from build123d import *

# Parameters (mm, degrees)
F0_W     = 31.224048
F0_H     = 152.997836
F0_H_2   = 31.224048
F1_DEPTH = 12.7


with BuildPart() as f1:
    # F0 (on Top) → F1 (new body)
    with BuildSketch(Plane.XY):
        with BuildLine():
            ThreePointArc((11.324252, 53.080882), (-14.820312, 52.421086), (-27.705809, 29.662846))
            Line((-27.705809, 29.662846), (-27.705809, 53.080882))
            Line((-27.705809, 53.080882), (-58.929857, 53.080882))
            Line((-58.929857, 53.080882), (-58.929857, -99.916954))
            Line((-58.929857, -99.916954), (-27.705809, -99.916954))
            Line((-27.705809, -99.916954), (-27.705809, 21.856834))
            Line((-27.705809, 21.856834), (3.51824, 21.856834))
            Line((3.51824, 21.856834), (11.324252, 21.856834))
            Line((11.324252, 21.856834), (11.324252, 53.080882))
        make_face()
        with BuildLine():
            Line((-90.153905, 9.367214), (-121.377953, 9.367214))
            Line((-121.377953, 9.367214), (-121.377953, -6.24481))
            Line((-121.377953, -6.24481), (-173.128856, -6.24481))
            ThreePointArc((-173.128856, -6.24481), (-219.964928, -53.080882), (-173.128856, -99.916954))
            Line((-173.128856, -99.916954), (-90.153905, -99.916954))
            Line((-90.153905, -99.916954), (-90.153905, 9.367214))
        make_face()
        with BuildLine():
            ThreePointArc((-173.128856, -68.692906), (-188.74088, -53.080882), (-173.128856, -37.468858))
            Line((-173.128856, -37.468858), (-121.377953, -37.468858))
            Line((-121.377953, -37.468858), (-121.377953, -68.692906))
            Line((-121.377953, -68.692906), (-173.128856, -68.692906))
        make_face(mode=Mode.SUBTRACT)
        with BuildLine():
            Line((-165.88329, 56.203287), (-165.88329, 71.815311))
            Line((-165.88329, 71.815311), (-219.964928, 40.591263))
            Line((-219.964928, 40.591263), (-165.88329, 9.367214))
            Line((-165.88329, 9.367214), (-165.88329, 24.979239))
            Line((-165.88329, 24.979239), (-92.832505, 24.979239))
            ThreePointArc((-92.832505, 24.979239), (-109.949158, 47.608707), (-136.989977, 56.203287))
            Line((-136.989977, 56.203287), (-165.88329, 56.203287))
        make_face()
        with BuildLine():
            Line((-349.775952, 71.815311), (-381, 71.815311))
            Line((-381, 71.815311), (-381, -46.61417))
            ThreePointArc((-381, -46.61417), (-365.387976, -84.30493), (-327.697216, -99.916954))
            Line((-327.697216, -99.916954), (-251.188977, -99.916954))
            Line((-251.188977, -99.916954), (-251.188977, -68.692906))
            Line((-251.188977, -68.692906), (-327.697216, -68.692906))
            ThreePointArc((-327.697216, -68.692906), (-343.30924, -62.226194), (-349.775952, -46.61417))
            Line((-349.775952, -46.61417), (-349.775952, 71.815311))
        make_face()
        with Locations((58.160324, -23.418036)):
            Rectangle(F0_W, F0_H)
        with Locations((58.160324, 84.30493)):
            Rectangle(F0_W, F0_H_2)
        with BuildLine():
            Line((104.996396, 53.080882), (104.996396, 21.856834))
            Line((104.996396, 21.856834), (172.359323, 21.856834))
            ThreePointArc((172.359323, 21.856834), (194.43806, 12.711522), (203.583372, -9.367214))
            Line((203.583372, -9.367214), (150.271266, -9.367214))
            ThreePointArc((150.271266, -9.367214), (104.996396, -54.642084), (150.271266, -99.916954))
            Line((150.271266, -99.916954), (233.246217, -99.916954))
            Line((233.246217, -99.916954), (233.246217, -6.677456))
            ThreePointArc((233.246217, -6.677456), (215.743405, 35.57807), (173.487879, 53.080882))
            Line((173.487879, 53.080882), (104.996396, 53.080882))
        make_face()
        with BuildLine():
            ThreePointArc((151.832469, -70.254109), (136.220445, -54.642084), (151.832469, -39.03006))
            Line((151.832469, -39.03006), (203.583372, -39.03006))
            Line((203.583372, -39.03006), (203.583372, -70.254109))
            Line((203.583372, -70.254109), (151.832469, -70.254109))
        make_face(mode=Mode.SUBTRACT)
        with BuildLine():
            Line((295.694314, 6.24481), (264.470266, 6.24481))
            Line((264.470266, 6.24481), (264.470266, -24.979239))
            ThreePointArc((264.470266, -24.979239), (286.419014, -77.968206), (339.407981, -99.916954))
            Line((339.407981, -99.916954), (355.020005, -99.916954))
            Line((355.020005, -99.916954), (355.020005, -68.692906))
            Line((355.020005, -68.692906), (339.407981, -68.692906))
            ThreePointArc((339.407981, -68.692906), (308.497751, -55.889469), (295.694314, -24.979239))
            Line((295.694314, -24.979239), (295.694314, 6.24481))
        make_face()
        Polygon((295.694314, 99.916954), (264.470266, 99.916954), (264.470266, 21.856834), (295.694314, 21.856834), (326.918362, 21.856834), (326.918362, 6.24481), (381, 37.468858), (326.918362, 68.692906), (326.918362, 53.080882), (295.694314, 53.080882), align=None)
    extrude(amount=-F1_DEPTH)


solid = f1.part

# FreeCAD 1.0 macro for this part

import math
import FreeCAD as App
import Part
import Sketcher
from FreeCAD import Vector
Q = App.Units.Quantity


def add_polygon(sketch, points):
    """Adds a closed chain of lines whose ends are joined by coincident constraints."""
    first, n = sketch.GeometryCount, len(points)
    for a, b in zip(points, points[1:] + points[:1]):
        sketch.addGeometry(Part.LineSegment(App.Vector(*a, 0), App.Vector(*b, 0)), False)
    for i in range(n):
        sketch.addConstraint(Sketcher.Constraint("Coincident", first + i, 2, first + (i + 1) % n, 1))

doc = App.newDocument("Part")
body = doc.addObject("PartDesign::Body", "Body")
body.AllowCompound = True

sketch1 = body.newObject("Sketcher::SketchObject", "Sketch")
sketch1.AttachmentSupport = (doc.getObject("XY_Plane"), [""])
sketch1.MapMode = "FlatFace"
sketch1.addGeometry(Part.ArcOfCircle(Part.Circle(Vector(-1, 30, 0), Vector(0, 0, 1), 27), math.radians(62), math.radians(180)), False)
sketch1.addGeometry(Part.LineSegment(Vector(-28, 30, 0), Vector(-28, 53, 0)), False)
sketch1.addGeometry(Part.LineSegment(Vector(-28, 53, 0), Vector(-59, 53, 0)), False)
sketch1.addGeometry(Part.LineSegment(Vector(-59, 53, 0), Vector(-59, -100, 0)), False)
sketch1.addGeometry(Part.LineSegment(Vector(-59, -100, 0), Vector(-28, -100, 0)), False)
sketch1.addGeometry(Part.LineSegment(Vector(-28, -100, 0), Vector(-28, 22, 0)), False)
sketch1.addGeometry(Part.LineSegment(Vector(-28, 22, 0), Vector(11, 22, 0)), False)
sketch1.addGeometry(Part.LineSegment(Vector(11, 22, 0), Vector(11, 53, 0)), False)
sketch1.addGeometry(Part.LineSegment(Vector(-90, 9, 0), Vector(-121, 9, 0)), False)
sketch1.addGeometry(Part.LineSegment(Vector(-121, 9, 0), Vector(-121, -6, 0)), False)
sketch1.addGeometry(Part.LineSegment(Vector(-121, -6, 0), Vector(-173, -6, 0)), False)
sketch1.addGeometry(Part.ArcOfCircle(Part.Circle(Vector(-173, -53, 0), Vector(0, 0, 1), 47), math.radians(90), math.radians(270)), False)
sketch1.addGeometry(Part.LineSegment(Vector(-173, -100, 0), Vector(-90, -100, 0)), False)
sketch1.addGeometry(Part.LineSegment(Vector(-90, -100, 0), Vector(-90, 9, 0)), False)
sketch1.addGeometry(Part.LineSegment(Vector(-121, -69, 0), Vector(-173, -69, 0)), False)
sketch1.addGeometry(Part.ArcOfCircle(Part.Circle(Vector(-173, -53, 0), Vector(0, 0, 1), 16), math.radians(90), math.radians(270)), False)
sketch1.addGeometry(Part.LineSegment(Vector(-173, -37, 0), Vector(-121, -37, 0)), False)
sketch1.addGeometry(Part.LineSegment(Vector(-121, -37, 0), Vector(-121, -69, 0)), False)
sketch1.addGeometry(Part.LineSegment(Vector(-166, 56, 0), Vector(-166, 72, 0)), False)
sketch1.addGeometry(Part.LineSegment(Vector(-166, 72, 0), Vector(-220, 41, 0)), False)
sketch1.addGeometry(Part.LineSegment(Vector(-220, 41, 0), Vector(-166, 9, 0)), False)
sketch1.addGeometry(Part.LineSegment(Vector(-166, 9, 0), Vector(-166, 25, 0)), False)
sketch1.addGeometry(Part.LineSegment(Vector(-166, 25, 0), Vector(-93, 25, 0)), False)
sketch1.addGeometry(Part.ArcOfCircle(Part.Circle(Vector(-137, 9, 0), Vector(0, 0, 1), 47), math.radians(19), math.radians(90)), False)
sketch1.addGeometry(Part.LineSegment(Vector(-137, 56, 0), Vector(-166, 56, 0)), False)
sketch1.addGeometry(Part.LineSegment(Vector(-350, 72, 0), Vector(-381, 72, 0)), False)
sketch1.addGeometry(Part.LineSegment(Vector(-381, 72, 0), Vector(-381, -47, 0)), False)
sketch1.addGeometry(Part.ArcOfCircle(Part.Circle(Vector(-328, -47, 0), Vector(0, 0, 1), 53), math.radians(-180), math.radians(-90)), False)
sketch1.addGeometry(Part.LineSegment(Vector(-328, -100, 0), Vector(-251, -100, 0)), False)
sketch1.addGeometry(Part.LineSegment(Vector(-251, -100, 0), Vector(-251, -69, 0)), False)
sketch1.addGeometry(Part.LineSegment(Vector(-251, -69, 0), Vector(-328, -69, 0)), False)
sketch1.addGeometry(Part.ArcOfCircle(Part.Circle(Vector(-328, -47, 0), Vector(0, 0, 1), 22), math.radians(180), math.radians(270)), False)
sketch1.addGeometry(Part.LineSegment(Vector(-350, -47, 0), Vector(-350, 72, 0)), False)
add_polygon(sketch1, [(43, 53), (43, -100), (74, -100), (74, 53)])
add_polygon(sketch1, [(43, 100), (43, 69), (74, 69), (74, 100)])
sketch1.addGeometry(Part.LineSegment(Vector(105, 53, 0), Vector(105, 22, 0)), False)
sketch1.addGeometry(Part.LineSegment(Vector(105, 22, 0), Vector(172, 22, 0)), False)
sketch1.addGeometry(Part.ArcOfCircle(Part.Circle(Vector(172, -9, 0), Vector(0, 0, 1), 31), math.radians(0), math.radians(90)), False)
sketch1.addGeometry(Part.LineSegment(Vector(204, -9, 0), Vector(150, -9, 0)), False)
sketch1.addGeometry(Part.ArcOfCircle(Part.Circle(Vector(150, -55, 0), Vector(0, 0, 1), 45), math.radians(90), math.radians(270)), False)
sketch1.addGeometry(Part.LineSegment(Vector(150, -100, 0), Vector(233, -100, 0)), False)
sketch1.addGeometry(Part.LineSegment(Vector(233, -100, 0), Vector(233, -7, 0)), False)
sketch1.addGeometry(Part.ArcOfCircle(Part.Circle(Vector(173, -7, 0), Vector(0, 0, 1), 60), math.radians(0), math.radians(90)), False)
sketch1.addGeometry(Part.LineSegment(Vector(173, 53, 0), Vector(105, 53, 0)), False)
sketch1.addGeometry(Part.LineSegment(Vector(204, -70, 0), Vector(152, -70, 0)), False)
sketch1.addGeometry(Part.ArcOfCircle(Part.Circle(Vector(152, -55, 0), Vector(0, 0, 1), 16), math.radians(90), math.radians(270)), False)
sketch1.addGeometry(Part.LineSegment(Vector(152, -39, 0), Vector(204, -39, 0)), False)
sketch1.addGeometry(Part.LineSegment(Vector(204, -39, 0), Vector(204, -70, 0)), False)
sketch1.addGeometry(Part.LineSegment(Vector(296, 6, 0), Vector(264, 6, 0)), False)
sketch1.addGeometry(Part.LineSegment(Vector(264, 6, 0), Vector(264, -25, 0)), False)
sketch1.addGeometry(Part.ArcOfCircle(Part.Circle(Vector(339, -25, 0), Vector(0, 0, 1), 75), math.radians(180), math.radians(270)), False)
sketch1.addGeometry(Part.LineSegment(Vector(339, -100, 0), Vector(355, -100, 0)), False)
sketch1.addGeometry(Part.LineSegment(Vector(355, -100, 0), Vector(355, -69, 0)), False)
sketch1.addGeometry(Part.LineSegment(Vector(355, -69, 0), Vector(339, -69, 0)), False)
sketch1.addGeometry(Part.ArcOfCircle(Part.Circle(Vector(339, -25, 0), Vector(0, 0, 1), 44), math.radians(-180), math.radians(-90)), False)
sketch1.addGeometry(Part.LineSegment(Vector(296, -25, 0), Vector(296, 6, 0)), False)
add_polygon(sketch1, [(296, 100), (264, 100), (264, 22), (327, 22), (327, 6), (381, 37), (327, 69), (327, 53), (296, 53)])
sketch1.addConstraint([
    Sketcher.Constraint("Tangent", 0, 2, 1, 1),
    Sketcher.Constraint("Coincident", 1, 2, 2, 1),
    Sketcher.Constraint("Coincident", 2, 2, 3, 1),
    Sketcher.Constraint("Coincident", 3, 2, 4, 1),
    Sketcher.Constraint("Coincident", 4, 2, 5, 1),
    Sketcher.Constraint("Coincident", 5, 2, 6, 1),
    Sketcher.Constraint("Coincident", 6, 2, 7, 1),
    Sketcher.Constraint("Coincident", 7, 2, 0, 1),
    Sketcher.Constraint("Coincident", 8, 2, 9, 1),
    Sketcher.Constraint("Coincident", 9, 2, 10, 1),
    Sketcher.Constraint("Tangent", 10, 2, 11, 1),
    Sketcher.Constraint("Tangent", 11, 2, 12, 1),
    Sketcher.Constraint("Coincident", 12, 2, 13, 1),
    Sketcher.Constraint("Coincident", 13, 2, 8, 1),
    Sketcher.Constraint("Tangent", 14, 2, 15, 2),
    Sketcher.Constraint("Tangent", 15, 1, 16, 1),
    Sketcher.Constraint("Coincident", 16, 2, 17, 1),
    Sketcher.Constraint("Coincident", 17, 2, 14, 1),
    Sketcher.Constraint("Coincident", 18, 2, 19, 1),
    Sketcher.Constraint("Coincident", 19, 2, 20, 1),
    Sketcher.Constraint("Coincident", 20, 2, 21, 1),
    Sketcher.Constraint("Coincident", 21, 2, 22, 1),
    Sketcher.Constraint("Coincident", 22, 2, 23, 1),
    Sketcher.Constraint("Tangent", 23, 2, 24, 1),
    Sketcher.Constraint("Coincident", 24, 2, 18, 1),
    Sketcher.Constraint("Coincident", 25, 2, 26, 1),
    Sketcher.Constraint("Tangent", 26, 2, 27, 1),
    Sketcher.Constraint("Tangent", 27, 2, 28, 1),
    Sketcher.Constraint("Coincident", 28, 2, 29, 1),
    Sketcher.Constraint("Coincident", 29, 2, 30, 1),
    Sketcher.Constraint("Tangent", 30, 2, 31, 2),
    Sketcher.Constraint("Tangent", 31, 1, 32, 1),
    Sketcher.Constraint("Coincident", 32, 2, 25, 1),
    Sketcher.Constraint("Coincident", 41, 2, 42, 1),
    Sketcher.Constraint("Tangent", 42, 2, 43, 2),
    Sketcher.Constraint("Coincident", 43, 1, 44, 1),
    Sketcher.Constraint("Tangent", 44, 2, 45, 1),
    Sketcher.Constraint("Tangent", 45, 2, 46, 1),
    Sketcher.Constraint("Coincident", 46, 2, 47, 1),
    Sketcher.Constraint("Tangent", 47, 2, 48, 1),
    Sketcher.Constraint("Tangent", 48, 2, 49, 1),
    Sketcher.Constraint("Coincident", 49, 2, 41, 1),
    Sketcher.Constraint("Tangent", 50, 2, 51, 2),
    Sketcher.Constraint("Tangent", 51, 1, 52, 1),
    Sketcher.Constraint("Coincident", 52, 2, 53, 1),
    Sketcher.Constraint("Coincident", 53, 2, 50, 1),
    Sketcher.Constraint("Coincident", 54, 2, 55, 1),
    Sketcher.Constraint("Tangent", 55, 2, 56, 1),
    Sketcher.Constraint("Tangent", 56, 2, 57, 1),
    Sketcher.Constraint("Coincident", 57, 2, 58, 1),
    Sketcher.Constraint("Coincident", 58, 2, 59, 1),
    Sketcher.Constraint("Tangent", 59, 2, 60, 2),
    Sketcher.Constraint("Tangent", 60, 1, 61, 1),
    Sketcher.Constraint("Coincident", 61, 2, 54, 1),
    Sketcher.Constraint("Vertical", 1),
    Sketcher.Constraint("Horizontal", 2),
    Sketcher.Constraint("Vertical", 3),
    Sketcher.Constraint("Horizontal", 4),
    Sketcher.Constraint("Vertical", 5),
    Sketcher.Constraint("Horizontal", 6),
    Sketcher.Constraint("Vertical", 7),
    Sketcher.Constraint("Horizontal", 8),
    Sketcher.Constraint("Vertical", 9),
    Sketcher.Constraint("Horizontal", 10),
    Sketcher.Constraint("Horizontal", 12),
    Sketcher.Constraint("Vertical", 13),
    Sketcher.Constraint("Horizontal", 14),
    Sketcher.Constraint("Horizontal", 16),
    Sketcher.Constraint("Vertical", 17),
    Sketcher.Constraint("Vertical", 18),
    Sketcher.Constraint("Vertical", 21),
    Sketcher.Constraint("Horizontal", 22),
    Sketcher.Constraint("Horizontal", 24),
    Sketcher.Constraint("Horizontal", 25),
    Sketcher.Constraint("Vertical", 26),
    Sketcher.Constraint("Horizontal", 28),
    Sketcher.Constraint("Vertical", 29),
    Sketcher.Constraint("Horizontal", 30),
    Sketcher.Constraint("Vertical", 32),
    Sketcher.Constraint("Vertical", 33),
    Sketcher.Constraint("Horizontal", 34),
    Sketcher.Constraint("Vertical", 35),
    Sketcher.Constraint("Horizontal", 36),
    Sketcher.Constraint("Vertical", 37),
    Sketcher.Constraint("Horizontal", 38),
    Sketcher.Constraint("Vertical", 39),
    Sketcher.Constraint("Horizontal", 40),
    Sketcher.Constraint("Vertical", 41),
    Sketcher.Constraint("Horizontal", 42),
    Sketcher.Constraint("Horizontal", 44),
    Sketcher.Constraint("Horizontal", 46),
    Sketcher.Constraint("Vertical", 47),
    Sketcher.Constraint("Horizontal", 49),
    Sketcher.Constraint("Horizontal", 50),
    Sketcher.Constraint("Horizontal", 52),
    Sketcher.Constraint("Vertical", 53),
    Sketcher.Constraint("Horizontal", 54),
    Sketcher.Constraint("Vertical", 55),
    Sketcher.Constraint("Horizontal", 57),
    Sketcher.Constraint("Vertical", 58),
    Sketcher.Constraint("Horizontal", 59),
    Sketcher.Constraint("Vertical", 61),
    Sketcher.Constraint("Horizontal", 62),
    Sketcher.Constraint("Vertical", 63),
    Sketcher.Constraint("Horizontal", 64),
    Sketcher.Constraint("Vertical", 65),
    Sketcher.Constraint("Vertical", 68),
    Sketcher.Constraint("Horizontal", 69),
    Sketcher.Constraint("Vertical", 70),
    Sketcher.Constraint("Coincident", 15, 3, 11, 3),
    Sketcher.Constraint("Coincident", 31, 3, 27, 3),
    Sketcher.Constraint("Coincident", 60, 3, 56, 3),
    Sketcher.Constraint("Equal", 11, 23),
    Sketcher.Constraint("Equal", 15, 51),
    Sketcher.Constraint("Symmetric", 34, 2, 39, 2, -1),
    Sketcher.Constraint("Parallel", 19, 66),
    Sketcher.Constraint("Parallel", 20, 67),
    Sketcher.Constraint("Horizontal", 45, 3, 51, 3),
    Sketcher.Constraint("Horizontal", 2, 2, 7, 2),
    Sketcher.Constraint("Horizontal", 23, 3, 8, 2),
    Sketcher.Constraint("Horizontal", 4, 2, 11, 2),
    Sketcher.Constraint("Horizontal", 13, 2, 20, 2),
    Sketcher.Constraint("Horizontal", 18, 2, 25, 2),
    Sketcher.Constraint("Horizontal", 12, 2, 27, 2),
    Sketcher.Constraint("Horizontal", 17, 2, 29, 2),
    Sketcher.Constraint("Horizontal", 28, 2, 33, 2),
    Sketcher.Constraint("Horizontal", 7, 2, 35, 2),
    Sketcher.Constraint("Horizontal", 6, 2, 41, 2),
    Sketcher.Constraint("Horizontal", 34, 2, 45, 2),
    Sketcher.Constraint("Horizontal", 36, 2, 48, 2),
    Sketcher.Constraint("Horizontal", 46, 2, 56, 2),
    Sketcher.Constraint("Horizontal", 30, 2, 58, 2),
    Sketcher.Constraint("Horizontal", 40, 2, 62, 2),
    Sketcher.Constraint("Horizontal", 42, 2, 63, 2),
    Sketcher.Constraint("Horizontal", 61, 2, 65, 2),
    Sketcher.Constraint("Horizontal", 38, 2, 67, 2),
    Sketcher.Constraint("Horizontal", 49, 2, 68, 2),
    Sketcher.Constraint("Vertical", 1, 2, 4, 2),
    Sketcher.Constraint("Vertical", 9, 2, 16, 2),
    Sketcher.Constraint("Vertical", 18, 2, 20, 2),
    Sketcher.Constraint("Vertical", 36, 2, 37, 2),
    Sketcher.Constraint("Vertical", 43, 1, 52, 2),
    Sketcher.Constraint("Vertical", 55, 2, 62, 2),
    Sketcher.Constraint("Vertical", 65, 2, 67, 2),
    Sketcher.Constraint("Vertical", 61, 2, 69, 2),
    Sketcher.Constraint("Equal", 4, 8),
    Sketcher.Constraint("Equal", 8, 25),
    Sketcher.Constraint("Equal", 25, 34),
    Sketcher.Constraint("Equal", 12, 46),
    Sketcher.Constraint("Equal", 16, 50),
    Sketcher.Constraint("Equal", 62, 69),
    Sketcher.Constraint("Equal", 69, 7),
    Sketcher.Constraint("Equal", 59, 9),
    Sketcher.Constraint("Equal", 7, 17),
    Sketcher.Constraint("Equal", 9, 18),
    Sketcher.Constraint("Equal", 18, 21),
    Sketcher.Constraint("Equal", 29, 37),
    Sketcher.Constraint("Equal", 53, 55),
    Sketcher.Constraint("Equal", 21, 65),
    Sketcher.Constraint("Equal", 65, 68),
    Sketcher.Constraint("Equal", 19, 20),
    Sketcher.Constraint("Equal", 20, 66),
    Sketcher.Constraint("DistanceX", 25, 2, -1, 1, Q("15 in")),
    Sketcher.Constraint("DistanceX", -1, 1, 66, 2, Q("15 in")),
    Sketcher.Constraint("Angle", 19, Q("-150 deg")),
    Sketcher.Constraint("Radius", 0, Q("26.540442 mm")),
    Sketcher.Constraint("Radius", 43, Q("31.224048 mm")),
    Sketcher.Constraint("Radius", 45, Q("45.27487 mm")),
    Sketcher.Constraint("Radius", 48, Q("59.758338 mm")),
    Sketcher.Constraint("Radius", 60, Q("43.713668 mm")),
    Sketcher.Constraint("DistanceX", -1, 1, 43, 3, Q("6.7858001 in")),
    Sketcher.Constraint("Radius", 11, Q("46.836072 mm")),
    Sketcher.Constraint("Radius", 27, Q("53.302784 mm")),
    Sketcher.Constraint("DistanceX", 6, 1, 6, 2, Q("39.030061 mm")),
    Sketcher.Constraint("DistanceX", 12, 1, 12, 2, Q("82.974951 mm")),
    Sketcher.Constraint("DistanceX", 28, 1, 28, 2, Q("76.508239 mm")),
    Sketcher.Constraint("DistanceX", -1, 1, 33, 2, Q("42.5483 mm")),
    Sketcher.Constraint("DistanceX", 22, 1, 22, 2, Q("73.050785 mm")),
    Sketcher.Constraint("DistanceX", 42, 1, 42, 2, Q("67.362927 mm")),
    Sketcher.Constraint("DistanceX", 44, 2, 44, 1, Q("53.312106 mm")),
    Sketcher.Constraint("DistanceX", 23, 3, -1, 1, Q("136.989978 mm")),
    Sketcher.Constraint("DistanceX", 0, 2, -1, 1, Q("27.705809 mm")),
    Sketcher.Constraint("DistanceX", 11, 3, -1, 1, Q("173.128856 mm")),
])
pad1 = body.newObject("PartDesign::Pad", "Pad")
pad1.Profile = sketch1
pad1.Length = Q("0.5 in")
pad1.Reversed = True

doc.recompute()
